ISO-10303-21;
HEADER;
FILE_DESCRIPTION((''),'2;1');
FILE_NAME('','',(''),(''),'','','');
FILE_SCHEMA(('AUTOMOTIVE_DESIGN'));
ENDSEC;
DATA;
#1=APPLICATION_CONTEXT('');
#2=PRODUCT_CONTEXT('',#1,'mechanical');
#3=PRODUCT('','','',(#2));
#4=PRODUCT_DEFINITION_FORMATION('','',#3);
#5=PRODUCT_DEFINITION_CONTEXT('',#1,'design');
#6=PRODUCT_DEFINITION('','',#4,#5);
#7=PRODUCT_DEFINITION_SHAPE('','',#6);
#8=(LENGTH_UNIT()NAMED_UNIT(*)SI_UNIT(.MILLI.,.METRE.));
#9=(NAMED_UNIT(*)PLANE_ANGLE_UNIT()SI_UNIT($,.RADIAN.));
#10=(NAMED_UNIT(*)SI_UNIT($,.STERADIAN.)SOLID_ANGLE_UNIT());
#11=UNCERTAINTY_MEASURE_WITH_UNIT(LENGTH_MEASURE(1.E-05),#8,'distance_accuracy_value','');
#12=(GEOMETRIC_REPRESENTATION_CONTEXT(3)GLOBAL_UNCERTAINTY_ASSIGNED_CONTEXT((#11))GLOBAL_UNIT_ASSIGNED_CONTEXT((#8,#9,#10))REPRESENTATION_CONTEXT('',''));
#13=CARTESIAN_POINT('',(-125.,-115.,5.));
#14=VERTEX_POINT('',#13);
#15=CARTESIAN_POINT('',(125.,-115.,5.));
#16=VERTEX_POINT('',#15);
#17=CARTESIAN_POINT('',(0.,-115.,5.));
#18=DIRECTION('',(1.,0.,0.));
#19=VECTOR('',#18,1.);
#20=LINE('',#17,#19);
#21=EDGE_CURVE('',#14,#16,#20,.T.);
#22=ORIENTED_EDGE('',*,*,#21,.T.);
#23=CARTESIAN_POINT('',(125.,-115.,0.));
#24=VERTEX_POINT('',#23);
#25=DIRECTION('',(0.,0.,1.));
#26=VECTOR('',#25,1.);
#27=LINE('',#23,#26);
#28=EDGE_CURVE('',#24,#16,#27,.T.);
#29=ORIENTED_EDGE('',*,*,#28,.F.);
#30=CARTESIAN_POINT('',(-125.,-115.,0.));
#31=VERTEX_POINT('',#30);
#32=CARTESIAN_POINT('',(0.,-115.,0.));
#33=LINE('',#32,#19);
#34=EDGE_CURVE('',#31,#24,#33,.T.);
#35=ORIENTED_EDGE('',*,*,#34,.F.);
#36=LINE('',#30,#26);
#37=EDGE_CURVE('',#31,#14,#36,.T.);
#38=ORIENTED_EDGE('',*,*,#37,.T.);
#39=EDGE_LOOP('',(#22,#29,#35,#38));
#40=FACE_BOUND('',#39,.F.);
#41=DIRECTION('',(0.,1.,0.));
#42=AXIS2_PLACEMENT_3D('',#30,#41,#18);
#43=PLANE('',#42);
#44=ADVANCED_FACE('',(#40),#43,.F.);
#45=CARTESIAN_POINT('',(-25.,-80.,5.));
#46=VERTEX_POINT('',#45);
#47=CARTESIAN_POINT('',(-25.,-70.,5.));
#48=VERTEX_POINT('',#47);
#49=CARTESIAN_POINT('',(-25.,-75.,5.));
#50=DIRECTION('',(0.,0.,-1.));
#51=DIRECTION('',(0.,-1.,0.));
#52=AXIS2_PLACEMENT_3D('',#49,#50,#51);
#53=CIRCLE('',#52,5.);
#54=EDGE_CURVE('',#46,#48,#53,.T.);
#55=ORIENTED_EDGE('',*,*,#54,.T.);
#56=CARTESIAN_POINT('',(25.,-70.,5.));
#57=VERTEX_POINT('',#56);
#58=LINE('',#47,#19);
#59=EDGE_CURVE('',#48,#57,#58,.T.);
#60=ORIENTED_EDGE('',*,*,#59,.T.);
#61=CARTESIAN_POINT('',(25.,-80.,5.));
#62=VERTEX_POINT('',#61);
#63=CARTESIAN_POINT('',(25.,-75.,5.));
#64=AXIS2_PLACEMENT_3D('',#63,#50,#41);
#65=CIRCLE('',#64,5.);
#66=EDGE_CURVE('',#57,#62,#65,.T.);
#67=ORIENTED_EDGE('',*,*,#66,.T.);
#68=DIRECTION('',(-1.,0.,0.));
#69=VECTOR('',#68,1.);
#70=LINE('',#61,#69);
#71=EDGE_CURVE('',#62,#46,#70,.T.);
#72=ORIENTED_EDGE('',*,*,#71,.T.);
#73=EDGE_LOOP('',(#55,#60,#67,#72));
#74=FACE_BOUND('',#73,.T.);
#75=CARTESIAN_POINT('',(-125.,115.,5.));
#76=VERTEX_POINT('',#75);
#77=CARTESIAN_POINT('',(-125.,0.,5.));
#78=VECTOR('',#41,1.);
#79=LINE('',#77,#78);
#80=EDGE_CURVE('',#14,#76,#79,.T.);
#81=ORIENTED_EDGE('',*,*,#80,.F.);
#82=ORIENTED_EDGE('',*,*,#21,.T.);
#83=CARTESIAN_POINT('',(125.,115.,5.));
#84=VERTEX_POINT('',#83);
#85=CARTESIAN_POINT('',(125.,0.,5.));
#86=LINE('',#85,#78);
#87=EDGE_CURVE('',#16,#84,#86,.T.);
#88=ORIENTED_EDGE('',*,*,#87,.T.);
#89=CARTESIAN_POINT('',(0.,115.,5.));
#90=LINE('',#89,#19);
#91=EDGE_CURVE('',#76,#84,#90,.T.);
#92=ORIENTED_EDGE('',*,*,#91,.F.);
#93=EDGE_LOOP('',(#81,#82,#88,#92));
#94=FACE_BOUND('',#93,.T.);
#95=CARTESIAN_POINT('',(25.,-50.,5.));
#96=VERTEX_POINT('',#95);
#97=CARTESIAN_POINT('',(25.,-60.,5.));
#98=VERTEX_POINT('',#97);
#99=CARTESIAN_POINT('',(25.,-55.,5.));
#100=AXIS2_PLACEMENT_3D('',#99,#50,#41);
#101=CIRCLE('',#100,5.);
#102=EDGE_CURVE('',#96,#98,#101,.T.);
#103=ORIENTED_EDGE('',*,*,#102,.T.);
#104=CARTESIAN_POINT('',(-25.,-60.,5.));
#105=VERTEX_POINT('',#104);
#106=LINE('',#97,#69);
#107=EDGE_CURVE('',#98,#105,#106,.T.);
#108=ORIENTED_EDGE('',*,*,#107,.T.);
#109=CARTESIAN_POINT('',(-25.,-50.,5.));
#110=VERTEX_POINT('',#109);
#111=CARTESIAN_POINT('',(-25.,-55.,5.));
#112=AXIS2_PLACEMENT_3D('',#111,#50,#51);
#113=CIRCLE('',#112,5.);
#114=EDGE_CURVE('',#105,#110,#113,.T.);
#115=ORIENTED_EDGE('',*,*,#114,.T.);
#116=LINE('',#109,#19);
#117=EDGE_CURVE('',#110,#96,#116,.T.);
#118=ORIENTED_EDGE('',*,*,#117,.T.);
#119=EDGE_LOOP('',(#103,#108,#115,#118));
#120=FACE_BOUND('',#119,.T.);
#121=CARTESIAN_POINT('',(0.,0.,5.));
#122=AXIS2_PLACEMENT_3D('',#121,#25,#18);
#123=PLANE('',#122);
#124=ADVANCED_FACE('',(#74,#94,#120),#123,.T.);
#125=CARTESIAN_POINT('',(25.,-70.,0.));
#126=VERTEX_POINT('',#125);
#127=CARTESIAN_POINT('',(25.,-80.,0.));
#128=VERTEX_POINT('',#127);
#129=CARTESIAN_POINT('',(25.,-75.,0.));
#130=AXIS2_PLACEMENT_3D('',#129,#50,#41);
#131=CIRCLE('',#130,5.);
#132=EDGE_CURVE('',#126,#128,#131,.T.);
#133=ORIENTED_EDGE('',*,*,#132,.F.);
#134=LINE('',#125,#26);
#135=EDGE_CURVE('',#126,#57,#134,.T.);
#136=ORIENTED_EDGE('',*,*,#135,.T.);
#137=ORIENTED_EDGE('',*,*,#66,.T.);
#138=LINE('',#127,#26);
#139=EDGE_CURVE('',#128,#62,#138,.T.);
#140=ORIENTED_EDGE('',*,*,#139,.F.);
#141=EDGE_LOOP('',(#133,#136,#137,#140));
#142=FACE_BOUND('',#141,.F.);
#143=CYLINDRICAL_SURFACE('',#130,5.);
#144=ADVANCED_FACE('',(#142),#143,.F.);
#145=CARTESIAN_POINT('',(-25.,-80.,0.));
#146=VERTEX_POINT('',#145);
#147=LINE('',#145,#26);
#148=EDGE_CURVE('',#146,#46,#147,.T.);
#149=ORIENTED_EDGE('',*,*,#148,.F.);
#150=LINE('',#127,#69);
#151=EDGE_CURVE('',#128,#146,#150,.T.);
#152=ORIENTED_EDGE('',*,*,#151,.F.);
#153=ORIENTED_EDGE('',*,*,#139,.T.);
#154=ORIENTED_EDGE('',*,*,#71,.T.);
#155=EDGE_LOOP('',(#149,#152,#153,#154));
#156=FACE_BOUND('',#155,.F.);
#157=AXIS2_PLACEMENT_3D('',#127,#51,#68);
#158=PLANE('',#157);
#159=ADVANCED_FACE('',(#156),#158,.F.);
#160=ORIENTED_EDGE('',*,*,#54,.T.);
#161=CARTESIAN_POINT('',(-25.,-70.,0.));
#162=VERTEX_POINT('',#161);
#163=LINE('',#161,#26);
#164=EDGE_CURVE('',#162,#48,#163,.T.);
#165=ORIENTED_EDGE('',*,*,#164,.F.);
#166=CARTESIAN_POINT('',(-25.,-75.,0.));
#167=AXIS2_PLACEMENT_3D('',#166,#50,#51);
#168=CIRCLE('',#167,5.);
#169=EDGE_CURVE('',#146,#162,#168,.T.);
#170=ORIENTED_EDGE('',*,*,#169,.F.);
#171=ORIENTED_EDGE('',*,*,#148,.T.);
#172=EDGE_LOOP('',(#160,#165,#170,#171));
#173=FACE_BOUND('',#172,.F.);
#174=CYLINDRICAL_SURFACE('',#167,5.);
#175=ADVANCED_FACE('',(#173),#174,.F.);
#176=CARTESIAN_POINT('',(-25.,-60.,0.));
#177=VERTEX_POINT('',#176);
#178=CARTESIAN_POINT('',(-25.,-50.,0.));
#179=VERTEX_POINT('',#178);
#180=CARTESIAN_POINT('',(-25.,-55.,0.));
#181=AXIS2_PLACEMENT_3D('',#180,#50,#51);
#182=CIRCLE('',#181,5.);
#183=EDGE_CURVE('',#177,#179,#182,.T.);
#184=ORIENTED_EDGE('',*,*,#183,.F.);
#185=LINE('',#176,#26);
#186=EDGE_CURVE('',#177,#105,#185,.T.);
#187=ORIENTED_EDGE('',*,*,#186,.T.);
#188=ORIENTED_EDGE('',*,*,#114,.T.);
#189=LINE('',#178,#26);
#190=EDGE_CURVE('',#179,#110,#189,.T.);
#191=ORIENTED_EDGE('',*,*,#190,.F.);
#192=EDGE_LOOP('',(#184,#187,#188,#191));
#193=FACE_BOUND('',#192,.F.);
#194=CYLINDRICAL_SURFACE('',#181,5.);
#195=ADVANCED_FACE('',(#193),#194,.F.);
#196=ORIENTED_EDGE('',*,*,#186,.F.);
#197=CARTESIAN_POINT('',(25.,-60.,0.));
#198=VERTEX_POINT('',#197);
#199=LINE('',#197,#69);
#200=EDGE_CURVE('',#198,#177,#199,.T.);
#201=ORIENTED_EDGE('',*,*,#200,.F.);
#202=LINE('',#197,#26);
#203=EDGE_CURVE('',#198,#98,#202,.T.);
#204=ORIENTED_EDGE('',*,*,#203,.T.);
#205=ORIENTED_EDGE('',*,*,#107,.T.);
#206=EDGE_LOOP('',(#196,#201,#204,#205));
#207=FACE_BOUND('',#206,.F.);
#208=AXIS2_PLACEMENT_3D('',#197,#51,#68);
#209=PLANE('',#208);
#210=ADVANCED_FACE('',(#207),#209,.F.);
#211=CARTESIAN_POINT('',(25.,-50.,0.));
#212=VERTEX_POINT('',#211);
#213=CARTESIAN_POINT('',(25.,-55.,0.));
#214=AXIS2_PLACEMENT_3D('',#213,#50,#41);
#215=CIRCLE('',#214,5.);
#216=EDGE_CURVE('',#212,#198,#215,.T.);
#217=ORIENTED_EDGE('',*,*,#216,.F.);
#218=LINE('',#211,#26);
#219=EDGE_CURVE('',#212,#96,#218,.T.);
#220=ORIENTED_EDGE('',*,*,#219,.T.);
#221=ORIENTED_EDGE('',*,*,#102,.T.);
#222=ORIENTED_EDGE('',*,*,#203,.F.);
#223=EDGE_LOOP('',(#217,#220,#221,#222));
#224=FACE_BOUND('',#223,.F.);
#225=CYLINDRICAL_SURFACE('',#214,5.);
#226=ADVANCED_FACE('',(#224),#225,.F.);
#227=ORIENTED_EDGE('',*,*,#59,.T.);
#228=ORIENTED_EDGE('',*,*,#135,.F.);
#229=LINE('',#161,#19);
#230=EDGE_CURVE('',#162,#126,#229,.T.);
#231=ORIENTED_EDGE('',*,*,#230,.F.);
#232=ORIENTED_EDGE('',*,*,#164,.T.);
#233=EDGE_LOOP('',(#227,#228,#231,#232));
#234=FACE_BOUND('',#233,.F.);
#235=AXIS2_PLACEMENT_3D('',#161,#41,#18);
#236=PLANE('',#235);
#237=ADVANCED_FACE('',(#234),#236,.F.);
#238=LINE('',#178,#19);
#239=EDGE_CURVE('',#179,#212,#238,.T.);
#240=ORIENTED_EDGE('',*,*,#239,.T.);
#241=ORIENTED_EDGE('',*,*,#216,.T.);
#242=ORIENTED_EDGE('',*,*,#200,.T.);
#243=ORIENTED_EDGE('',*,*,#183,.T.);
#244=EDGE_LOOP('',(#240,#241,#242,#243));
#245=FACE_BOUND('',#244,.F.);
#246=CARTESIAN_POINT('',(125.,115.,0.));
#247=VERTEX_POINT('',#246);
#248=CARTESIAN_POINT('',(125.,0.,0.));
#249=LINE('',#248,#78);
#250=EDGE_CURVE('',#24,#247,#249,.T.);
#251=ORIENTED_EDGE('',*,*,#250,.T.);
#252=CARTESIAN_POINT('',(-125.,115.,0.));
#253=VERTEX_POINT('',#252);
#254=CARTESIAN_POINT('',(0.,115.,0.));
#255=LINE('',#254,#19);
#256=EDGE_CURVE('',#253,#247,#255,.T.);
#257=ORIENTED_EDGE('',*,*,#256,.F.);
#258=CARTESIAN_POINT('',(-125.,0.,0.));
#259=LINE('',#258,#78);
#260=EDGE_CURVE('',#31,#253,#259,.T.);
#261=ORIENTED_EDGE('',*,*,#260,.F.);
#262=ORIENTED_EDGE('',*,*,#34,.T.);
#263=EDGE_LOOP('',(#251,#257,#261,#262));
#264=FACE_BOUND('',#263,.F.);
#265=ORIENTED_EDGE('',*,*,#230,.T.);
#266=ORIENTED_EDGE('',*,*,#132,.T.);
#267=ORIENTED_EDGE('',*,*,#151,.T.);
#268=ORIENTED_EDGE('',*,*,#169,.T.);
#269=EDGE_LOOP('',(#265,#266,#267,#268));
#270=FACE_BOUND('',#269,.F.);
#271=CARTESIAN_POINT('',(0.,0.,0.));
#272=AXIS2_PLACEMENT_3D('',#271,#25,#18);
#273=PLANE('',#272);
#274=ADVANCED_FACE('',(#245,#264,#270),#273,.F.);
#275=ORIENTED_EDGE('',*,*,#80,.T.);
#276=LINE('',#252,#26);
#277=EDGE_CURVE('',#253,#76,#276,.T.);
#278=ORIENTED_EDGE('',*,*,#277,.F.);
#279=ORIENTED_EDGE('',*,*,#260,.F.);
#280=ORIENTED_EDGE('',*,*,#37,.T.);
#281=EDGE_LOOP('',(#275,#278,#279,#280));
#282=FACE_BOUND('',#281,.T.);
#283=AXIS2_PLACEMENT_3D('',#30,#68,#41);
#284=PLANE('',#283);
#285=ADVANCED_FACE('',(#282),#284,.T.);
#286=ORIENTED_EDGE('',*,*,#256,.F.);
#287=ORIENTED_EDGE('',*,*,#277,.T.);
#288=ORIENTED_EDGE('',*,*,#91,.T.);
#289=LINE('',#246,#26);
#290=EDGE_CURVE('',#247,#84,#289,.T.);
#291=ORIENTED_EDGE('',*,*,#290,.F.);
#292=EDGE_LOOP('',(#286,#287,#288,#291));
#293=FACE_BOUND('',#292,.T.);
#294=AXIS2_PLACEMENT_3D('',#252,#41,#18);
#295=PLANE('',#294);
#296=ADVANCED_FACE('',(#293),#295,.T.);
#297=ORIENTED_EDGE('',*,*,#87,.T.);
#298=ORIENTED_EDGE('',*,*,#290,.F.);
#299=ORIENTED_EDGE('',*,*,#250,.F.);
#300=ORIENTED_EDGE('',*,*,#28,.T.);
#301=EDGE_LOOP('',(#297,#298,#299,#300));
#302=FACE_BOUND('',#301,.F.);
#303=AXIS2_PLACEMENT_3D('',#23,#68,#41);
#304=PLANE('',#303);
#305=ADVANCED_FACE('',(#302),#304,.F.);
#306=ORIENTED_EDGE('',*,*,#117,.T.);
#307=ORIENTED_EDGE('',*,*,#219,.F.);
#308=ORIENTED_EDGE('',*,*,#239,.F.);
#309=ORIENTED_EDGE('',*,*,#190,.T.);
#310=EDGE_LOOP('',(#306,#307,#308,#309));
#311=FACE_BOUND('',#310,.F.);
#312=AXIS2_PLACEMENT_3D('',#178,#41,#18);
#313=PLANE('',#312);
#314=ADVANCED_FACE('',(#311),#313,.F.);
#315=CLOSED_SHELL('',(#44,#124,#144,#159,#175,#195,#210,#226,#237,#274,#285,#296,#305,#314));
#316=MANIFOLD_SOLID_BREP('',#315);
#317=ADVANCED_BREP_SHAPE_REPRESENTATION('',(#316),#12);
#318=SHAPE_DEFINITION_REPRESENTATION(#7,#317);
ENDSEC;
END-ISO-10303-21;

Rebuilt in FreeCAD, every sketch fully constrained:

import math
import FreeCAD as App
import Part
import Sketcher
from FreeCAD import Vector
Q = App.Units.Quantity


def add_polygon(sketch, points):
    """Adds a closed chain of lines whose ends are joined by coincident constraints."""
    first, n = sketch.GeometryCount, len(points)
    for a, b in zip(points, points[1:] + points[:1]):
        sketch.addGeometry(Part.LineSegment(App.Vector(*a, 0), App.Vector(*b, 0)), False)
    for i in range(n):
        sketch.addConstraint(Sketcher.Constraint("Coincident", first + i, 2, first + (i + 1) % n, 1))

doc = App.newDocument("Part")
params = doc.addObject("Spreadsheet::Sheet", "Params")
for row, (alias, value) in enumerate([
    ("sketch1_radius", "5 mm"),
    ("sketch1_width", "250 mm"),
    ("sketch1_width2", "50 mm"),
    ("sketch1_height", "230 mm"),
    ("pad1_length", "5 mm"),
], start=1):
    params.set(f"A{row}", alias)
    params.set(f"B{row}", "=" + value)
    params.setAlias(f"B{row}", alias)

body = doc.addObject("PartDesign::Body", "Body")

sketch1 = body.newObject("Sketcher::SketchObject", "Sketch")
sketch1.AttachmentSupport = (doc.getObject("XY_Plane"), [""])
sketch1.MapMode = "FlatFace"
add_polygon(sketch1, [(-125, 115), (-125, -115), (125, -115), (125, 115)])
sketch1.addGeometry(Part.LineSegment(Vector(25, -80, 0), Vector(-25, -80, 0)), False)
sketch1.addGeometry(Part.ArcOfCircle(Part.Circle(Vector(-25, -75, 0), Vector(0, 0, 1), 5), math.radians(90), math.radians(270)), False)
sketch1.addGeometry(Part.LineSegment(Vector(-25, -70, 0), Vector(25, -70, 0)), False)
sketch1.addGeometry(Part.ArcOfCircle(Part.Circle(Vector(25, -75, 0), Vector(0, 0, 1), 5), math.radians(-90), math.radians(90)), False)
sketch1.addGeometry(Part.LineSegment(Vector(25, -60, 0), Vector(-25, -60, 0)), False)
sketch1.addGeometry(Part.ArcOfCircle(Part.Circle(Vector(-25, -55, 0), Vector(0, 0, 1), 5), math.radians(90), math.radians(270)), False)
sketch1.addGeometry(Part.LineSegment(Vector(-25, -50, 0), Vector(25, -50, 0)), False)
sketch1.addGeometry(Part.ArcOfCircle(Part.Circle(Vector(25, -55, 0), Vector(0, 0, 1), 5), math.radians(-90), math.radians(90)), False)
sketch1.addConstraint(Sketcher.Constraint("Tangent", 4, 2, 5, 2))
sketch1.addConstraint(Sketcher.Constraint("Tangent", 5, 1, 6, 1))
sketch1.addConstraint(Sketcher.Constraint("Tangent", 6, 2, 7, 2))
sketch1.addConstraint(Sketcher.Constraint("Tangent", 7, 1, 4, 1))
sketch1.addConstraint(Sketcher.Constraint("Tangent", 8, 2, 9, 2))
sketch1.addConstraint(Sketcher.Constraint("Tangent", 9, 1, 10, 1))
sketch1.addConstraint(Sketcher.Constraint("Tangent", 10, 2, 11, 2))
sketch1.addConstraint(Sketcher.Constraint("Tangent", 11, 1, 8, 1))
sketch1.addConstraint(Sketcher.Constraint("Vertical", 0))
sketch1.addConstraint(Sketcher.Constraint("Horizontal", 1))
sketch1.addConstraint(Sketcher.Constraint("Vertical", 2))
sketch1.addConstraint(Sketcher.Constraint("Horizontal", 3))
sketch1.addConstraint(Sketcher.Constraint("Horizontal", 4))
sketch1.addConstraint(Sketcher.Constraint("Horizontal", 6))
sketch1.addConstraint(Sketcher.Constraint("Horizontal", 8))
sketch1.addConstraint(Sketcher.Constraint("Horizontal", 10))
sketch1.addConstraint(Sketcher.Constraint("Equal", 7, 9))
sketch1.addConstraint(Sketcher.Constraint("Symmetric", 0, 2, 2, 2, -1, 1))
sketch1.addConstraint(Sketcher.Constraint("Vertical", 5, 3, 9, 3))
sketch1.addConstraint(Sketcher.Constraint("Vertical", 7, 3, 11, 3))
sketch1.addConstraint(Sketcher.Constraint("Radius", 5, Q("5 mm")))
sketch1.addConstraint(Sketcher.Constraint("DistanceX", 1, 1, 1, 2, Q("250 mm")))
sketch1.addConstraint(Sketcher.Constraint("DistanceX", 4, 2, 4, 1, Q("50 mm")))
sketch1.addConstraint(Sketcher.Constraint("DistanceY", 0, 2, 0, 1, Q("230 mm")))
sketch1.addConstraint(Sketcher.Constraint("DistanceX", 5, 3, -1, 1, Q("25 mm")))
sketch1.addConstraint(Sketcher.Constraint("DistanceY", 5, 3, -1, 1, Q("75 mm")))
sketch1.addConstraint(Sketcher.Constraint("DistanceY", 9, 3, -1, 1, Q("55 mm")))
sketch1.setExpression("Constraints[24]", "Params.sketch1_radius")
sketch1.setExpression("Constraints[25]", "Params.sketch1_width")
sketch1.setExpression("Constraints[26]", "Params.sketch1_width2")
sketch1.setExpression("Constraints[27]", "Params.sketch1_height")
pad1 = body.newObject("PartDesign::Pad", "Pad")
pad1.Profile = sketch1
pad1.setExpression("Length", "Params.pad1_length")

doc.recompute()
